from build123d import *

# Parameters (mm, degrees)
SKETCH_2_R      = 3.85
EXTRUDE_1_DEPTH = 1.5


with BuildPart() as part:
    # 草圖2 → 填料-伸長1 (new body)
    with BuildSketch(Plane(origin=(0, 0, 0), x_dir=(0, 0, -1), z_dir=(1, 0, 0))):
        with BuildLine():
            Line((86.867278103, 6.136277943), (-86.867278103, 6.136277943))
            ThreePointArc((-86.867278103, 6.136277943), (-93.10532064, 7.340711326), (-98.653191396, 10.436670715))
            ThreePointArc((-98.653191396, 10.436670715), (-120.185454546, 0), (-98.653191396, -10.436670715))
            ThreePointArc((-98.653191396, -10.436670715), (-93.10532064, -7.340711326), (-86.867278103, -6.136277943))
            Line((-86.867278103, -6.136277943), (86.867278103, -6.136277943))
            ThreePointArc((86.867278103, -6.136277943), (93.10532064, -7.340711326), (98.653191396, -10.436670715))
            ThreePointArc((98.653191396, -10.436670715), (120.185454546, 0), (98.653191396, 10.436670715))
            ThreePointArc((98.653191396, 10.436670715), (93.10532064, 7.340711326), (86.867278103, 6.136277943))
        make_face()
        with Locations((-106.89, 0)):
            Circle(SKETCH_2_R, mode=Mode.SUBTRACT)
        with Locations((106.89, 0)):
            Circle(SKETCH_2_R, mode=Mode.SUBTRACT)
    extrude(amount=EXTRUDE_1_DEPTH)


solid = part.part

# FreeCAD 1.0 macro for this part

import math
import FreeCAD as App
import Part
import Sketcher
Q = App.Units.Quantity

doc = App.newDocument("Part")
body = doc.addObject("PartDesign::Body", "Body")

# Sketch on YZ plane
sketch1 = body.newObject("Sketcher::SketchObject", "Sketch")
sketch1.AttachmentSupport = (doc.getObject("YZ_Plane"), [""])
sketch1.MapMode = "FlatFace"
sketch1.addGeometry([
    Part.LineSegment(App.Vector(6.136278, -86.867278, 0), App.Vector(6.136278, 86.867278, 0)),  # 0
    Part.ArcOfCircle(Part.Circle(App.Vector(26.172811, 86.233946, 0), App.Vector(0, 0, 1), 20.04654), math.radians(141.718862), math.radians(178.189549)),  # 1
    Part.ArcOfCircle(Part.Circle(App.Vector(0, 106.89, 0), App.Vector(0, 0, 1), 13.295455), math.radians(-38.281138), math.radians(218.281138)),  # 2
    Part.ArcOfCircle(Part.Circle(App.Vector(-26.172811, 86.233946, 0), App.Vector(0, 0, 1), 20.04654), math.radians(1.810451), math.radians(38.281138)),  # 3
    Part.LineSegment(App.Vector(-6.136278, 86.867278, 0), App.Vector(-6.136278, -86.867278, 0)),  # 4
    Part.ArcOfCircle(Part.Circle(App.Vector(-26.172811, -86.233946, 0), App.Vector(0, 0, 1), 20.04654), math.radians(-38.281138), math.radians(-1.810451)),  # 5
    Part.ArcOfCircle(Part.Circle(App.Vector(0, -106.89, 0), App.Vector(0, 0, 1), 13.295455), math.radians(141.718862), math.radians(398.281138)),  # 6
    Part.ArcOfCircle(Part.Circle(App.Vector(26.172811, -86.233946, 0), App.Vector(0, 0, 1), 20.04654), math.radians(-178.189549), math.radians(-141.718862)),  # 7
    Part.Circle(App.Vector(0, 106.89, 0), App.Vector(0, 0, 1), 3.85),  # 8
    Part.Circle(App.Vector(0, -106.89, 0), App.Vector(0, 0, 1), 3.85),  # 9
], False)
sketch1.addConstraint([
    Sketcher.Constraint("Coincident", 0, 2, 1, 2),
    Sketcher.Constraint("Tangent", 1, 1, 2, 1),
    Sketcher.Constraint("Tangent", 2, 2, 3, 2),
    Sketcher.Constraint("Coincident", 3, 1, 4, 1),
    Sketcher.Constraint("Coincident", 4, 2, 5, 2),
    Sketcher.Constraint("Tangent", 5, 1, 6, 1),
    Sketcher.Constraint("Tangent", 6, 2, 7, 2),
    Sketcher.Constraint("Coincident", 7, 1, 0, 1),
    Sketcher.Constraint("Vertical", 0),
    Sketcher.Constraint("Vertical", 4),
    Sketcher.Constraint("Coincident", 8, 3, 2, 3),
    Sketcher.Constraint("Coincident", 9, 3, 6, 3),
    Sketcher.Constraint("Equal", 1, 3),
    Sketcher.Constraint("Equal", 3, 5),
    Sketcher.Constraint("Equal", 2, 6),
    Sketcher.Constraint("Equal", 5, 7),
    Sketcher.Constraint("Equal", 8, 9),
    Sketcher.Constraint("Symmetric", 1, 3, 5, 3, -1, 1),
    Sketcher.Constraint("Symmetric", 3, 3, 7, 3, -1, 1),
    Sketcher.Constraint("Symmetric", 1, 3, 3, 3, -2),
    Sketcher.Constraint("Horizontal", 0, 2, 3, 1),
    Sketcher.Constraint("Diameter", 8, Q("7.7 mm")),
    Sketcher.Constraint("DistanceY", -1, 1, 2, 3, Q("106.89 mm")),
    Sketcher.Constraint("Radius", 1, Q("20.04654 mm")),
    Sketcher.Constraint("Radius", 2, Q("13.295455 mm")),
    Sketcher.Constraint("DistanceY", 0, 1, 0, 2, Q("173.734556 mm")),
    Sketcher.Constraint("DistanceX", -1, 1, 1, 3, Q("26.172811 mm")),
])
pad1 = body.newObject("PartDesign::Pad", "Pad")
pad1.Profile = sketch1
pad1.Length = 1.5

doc.recompute()
